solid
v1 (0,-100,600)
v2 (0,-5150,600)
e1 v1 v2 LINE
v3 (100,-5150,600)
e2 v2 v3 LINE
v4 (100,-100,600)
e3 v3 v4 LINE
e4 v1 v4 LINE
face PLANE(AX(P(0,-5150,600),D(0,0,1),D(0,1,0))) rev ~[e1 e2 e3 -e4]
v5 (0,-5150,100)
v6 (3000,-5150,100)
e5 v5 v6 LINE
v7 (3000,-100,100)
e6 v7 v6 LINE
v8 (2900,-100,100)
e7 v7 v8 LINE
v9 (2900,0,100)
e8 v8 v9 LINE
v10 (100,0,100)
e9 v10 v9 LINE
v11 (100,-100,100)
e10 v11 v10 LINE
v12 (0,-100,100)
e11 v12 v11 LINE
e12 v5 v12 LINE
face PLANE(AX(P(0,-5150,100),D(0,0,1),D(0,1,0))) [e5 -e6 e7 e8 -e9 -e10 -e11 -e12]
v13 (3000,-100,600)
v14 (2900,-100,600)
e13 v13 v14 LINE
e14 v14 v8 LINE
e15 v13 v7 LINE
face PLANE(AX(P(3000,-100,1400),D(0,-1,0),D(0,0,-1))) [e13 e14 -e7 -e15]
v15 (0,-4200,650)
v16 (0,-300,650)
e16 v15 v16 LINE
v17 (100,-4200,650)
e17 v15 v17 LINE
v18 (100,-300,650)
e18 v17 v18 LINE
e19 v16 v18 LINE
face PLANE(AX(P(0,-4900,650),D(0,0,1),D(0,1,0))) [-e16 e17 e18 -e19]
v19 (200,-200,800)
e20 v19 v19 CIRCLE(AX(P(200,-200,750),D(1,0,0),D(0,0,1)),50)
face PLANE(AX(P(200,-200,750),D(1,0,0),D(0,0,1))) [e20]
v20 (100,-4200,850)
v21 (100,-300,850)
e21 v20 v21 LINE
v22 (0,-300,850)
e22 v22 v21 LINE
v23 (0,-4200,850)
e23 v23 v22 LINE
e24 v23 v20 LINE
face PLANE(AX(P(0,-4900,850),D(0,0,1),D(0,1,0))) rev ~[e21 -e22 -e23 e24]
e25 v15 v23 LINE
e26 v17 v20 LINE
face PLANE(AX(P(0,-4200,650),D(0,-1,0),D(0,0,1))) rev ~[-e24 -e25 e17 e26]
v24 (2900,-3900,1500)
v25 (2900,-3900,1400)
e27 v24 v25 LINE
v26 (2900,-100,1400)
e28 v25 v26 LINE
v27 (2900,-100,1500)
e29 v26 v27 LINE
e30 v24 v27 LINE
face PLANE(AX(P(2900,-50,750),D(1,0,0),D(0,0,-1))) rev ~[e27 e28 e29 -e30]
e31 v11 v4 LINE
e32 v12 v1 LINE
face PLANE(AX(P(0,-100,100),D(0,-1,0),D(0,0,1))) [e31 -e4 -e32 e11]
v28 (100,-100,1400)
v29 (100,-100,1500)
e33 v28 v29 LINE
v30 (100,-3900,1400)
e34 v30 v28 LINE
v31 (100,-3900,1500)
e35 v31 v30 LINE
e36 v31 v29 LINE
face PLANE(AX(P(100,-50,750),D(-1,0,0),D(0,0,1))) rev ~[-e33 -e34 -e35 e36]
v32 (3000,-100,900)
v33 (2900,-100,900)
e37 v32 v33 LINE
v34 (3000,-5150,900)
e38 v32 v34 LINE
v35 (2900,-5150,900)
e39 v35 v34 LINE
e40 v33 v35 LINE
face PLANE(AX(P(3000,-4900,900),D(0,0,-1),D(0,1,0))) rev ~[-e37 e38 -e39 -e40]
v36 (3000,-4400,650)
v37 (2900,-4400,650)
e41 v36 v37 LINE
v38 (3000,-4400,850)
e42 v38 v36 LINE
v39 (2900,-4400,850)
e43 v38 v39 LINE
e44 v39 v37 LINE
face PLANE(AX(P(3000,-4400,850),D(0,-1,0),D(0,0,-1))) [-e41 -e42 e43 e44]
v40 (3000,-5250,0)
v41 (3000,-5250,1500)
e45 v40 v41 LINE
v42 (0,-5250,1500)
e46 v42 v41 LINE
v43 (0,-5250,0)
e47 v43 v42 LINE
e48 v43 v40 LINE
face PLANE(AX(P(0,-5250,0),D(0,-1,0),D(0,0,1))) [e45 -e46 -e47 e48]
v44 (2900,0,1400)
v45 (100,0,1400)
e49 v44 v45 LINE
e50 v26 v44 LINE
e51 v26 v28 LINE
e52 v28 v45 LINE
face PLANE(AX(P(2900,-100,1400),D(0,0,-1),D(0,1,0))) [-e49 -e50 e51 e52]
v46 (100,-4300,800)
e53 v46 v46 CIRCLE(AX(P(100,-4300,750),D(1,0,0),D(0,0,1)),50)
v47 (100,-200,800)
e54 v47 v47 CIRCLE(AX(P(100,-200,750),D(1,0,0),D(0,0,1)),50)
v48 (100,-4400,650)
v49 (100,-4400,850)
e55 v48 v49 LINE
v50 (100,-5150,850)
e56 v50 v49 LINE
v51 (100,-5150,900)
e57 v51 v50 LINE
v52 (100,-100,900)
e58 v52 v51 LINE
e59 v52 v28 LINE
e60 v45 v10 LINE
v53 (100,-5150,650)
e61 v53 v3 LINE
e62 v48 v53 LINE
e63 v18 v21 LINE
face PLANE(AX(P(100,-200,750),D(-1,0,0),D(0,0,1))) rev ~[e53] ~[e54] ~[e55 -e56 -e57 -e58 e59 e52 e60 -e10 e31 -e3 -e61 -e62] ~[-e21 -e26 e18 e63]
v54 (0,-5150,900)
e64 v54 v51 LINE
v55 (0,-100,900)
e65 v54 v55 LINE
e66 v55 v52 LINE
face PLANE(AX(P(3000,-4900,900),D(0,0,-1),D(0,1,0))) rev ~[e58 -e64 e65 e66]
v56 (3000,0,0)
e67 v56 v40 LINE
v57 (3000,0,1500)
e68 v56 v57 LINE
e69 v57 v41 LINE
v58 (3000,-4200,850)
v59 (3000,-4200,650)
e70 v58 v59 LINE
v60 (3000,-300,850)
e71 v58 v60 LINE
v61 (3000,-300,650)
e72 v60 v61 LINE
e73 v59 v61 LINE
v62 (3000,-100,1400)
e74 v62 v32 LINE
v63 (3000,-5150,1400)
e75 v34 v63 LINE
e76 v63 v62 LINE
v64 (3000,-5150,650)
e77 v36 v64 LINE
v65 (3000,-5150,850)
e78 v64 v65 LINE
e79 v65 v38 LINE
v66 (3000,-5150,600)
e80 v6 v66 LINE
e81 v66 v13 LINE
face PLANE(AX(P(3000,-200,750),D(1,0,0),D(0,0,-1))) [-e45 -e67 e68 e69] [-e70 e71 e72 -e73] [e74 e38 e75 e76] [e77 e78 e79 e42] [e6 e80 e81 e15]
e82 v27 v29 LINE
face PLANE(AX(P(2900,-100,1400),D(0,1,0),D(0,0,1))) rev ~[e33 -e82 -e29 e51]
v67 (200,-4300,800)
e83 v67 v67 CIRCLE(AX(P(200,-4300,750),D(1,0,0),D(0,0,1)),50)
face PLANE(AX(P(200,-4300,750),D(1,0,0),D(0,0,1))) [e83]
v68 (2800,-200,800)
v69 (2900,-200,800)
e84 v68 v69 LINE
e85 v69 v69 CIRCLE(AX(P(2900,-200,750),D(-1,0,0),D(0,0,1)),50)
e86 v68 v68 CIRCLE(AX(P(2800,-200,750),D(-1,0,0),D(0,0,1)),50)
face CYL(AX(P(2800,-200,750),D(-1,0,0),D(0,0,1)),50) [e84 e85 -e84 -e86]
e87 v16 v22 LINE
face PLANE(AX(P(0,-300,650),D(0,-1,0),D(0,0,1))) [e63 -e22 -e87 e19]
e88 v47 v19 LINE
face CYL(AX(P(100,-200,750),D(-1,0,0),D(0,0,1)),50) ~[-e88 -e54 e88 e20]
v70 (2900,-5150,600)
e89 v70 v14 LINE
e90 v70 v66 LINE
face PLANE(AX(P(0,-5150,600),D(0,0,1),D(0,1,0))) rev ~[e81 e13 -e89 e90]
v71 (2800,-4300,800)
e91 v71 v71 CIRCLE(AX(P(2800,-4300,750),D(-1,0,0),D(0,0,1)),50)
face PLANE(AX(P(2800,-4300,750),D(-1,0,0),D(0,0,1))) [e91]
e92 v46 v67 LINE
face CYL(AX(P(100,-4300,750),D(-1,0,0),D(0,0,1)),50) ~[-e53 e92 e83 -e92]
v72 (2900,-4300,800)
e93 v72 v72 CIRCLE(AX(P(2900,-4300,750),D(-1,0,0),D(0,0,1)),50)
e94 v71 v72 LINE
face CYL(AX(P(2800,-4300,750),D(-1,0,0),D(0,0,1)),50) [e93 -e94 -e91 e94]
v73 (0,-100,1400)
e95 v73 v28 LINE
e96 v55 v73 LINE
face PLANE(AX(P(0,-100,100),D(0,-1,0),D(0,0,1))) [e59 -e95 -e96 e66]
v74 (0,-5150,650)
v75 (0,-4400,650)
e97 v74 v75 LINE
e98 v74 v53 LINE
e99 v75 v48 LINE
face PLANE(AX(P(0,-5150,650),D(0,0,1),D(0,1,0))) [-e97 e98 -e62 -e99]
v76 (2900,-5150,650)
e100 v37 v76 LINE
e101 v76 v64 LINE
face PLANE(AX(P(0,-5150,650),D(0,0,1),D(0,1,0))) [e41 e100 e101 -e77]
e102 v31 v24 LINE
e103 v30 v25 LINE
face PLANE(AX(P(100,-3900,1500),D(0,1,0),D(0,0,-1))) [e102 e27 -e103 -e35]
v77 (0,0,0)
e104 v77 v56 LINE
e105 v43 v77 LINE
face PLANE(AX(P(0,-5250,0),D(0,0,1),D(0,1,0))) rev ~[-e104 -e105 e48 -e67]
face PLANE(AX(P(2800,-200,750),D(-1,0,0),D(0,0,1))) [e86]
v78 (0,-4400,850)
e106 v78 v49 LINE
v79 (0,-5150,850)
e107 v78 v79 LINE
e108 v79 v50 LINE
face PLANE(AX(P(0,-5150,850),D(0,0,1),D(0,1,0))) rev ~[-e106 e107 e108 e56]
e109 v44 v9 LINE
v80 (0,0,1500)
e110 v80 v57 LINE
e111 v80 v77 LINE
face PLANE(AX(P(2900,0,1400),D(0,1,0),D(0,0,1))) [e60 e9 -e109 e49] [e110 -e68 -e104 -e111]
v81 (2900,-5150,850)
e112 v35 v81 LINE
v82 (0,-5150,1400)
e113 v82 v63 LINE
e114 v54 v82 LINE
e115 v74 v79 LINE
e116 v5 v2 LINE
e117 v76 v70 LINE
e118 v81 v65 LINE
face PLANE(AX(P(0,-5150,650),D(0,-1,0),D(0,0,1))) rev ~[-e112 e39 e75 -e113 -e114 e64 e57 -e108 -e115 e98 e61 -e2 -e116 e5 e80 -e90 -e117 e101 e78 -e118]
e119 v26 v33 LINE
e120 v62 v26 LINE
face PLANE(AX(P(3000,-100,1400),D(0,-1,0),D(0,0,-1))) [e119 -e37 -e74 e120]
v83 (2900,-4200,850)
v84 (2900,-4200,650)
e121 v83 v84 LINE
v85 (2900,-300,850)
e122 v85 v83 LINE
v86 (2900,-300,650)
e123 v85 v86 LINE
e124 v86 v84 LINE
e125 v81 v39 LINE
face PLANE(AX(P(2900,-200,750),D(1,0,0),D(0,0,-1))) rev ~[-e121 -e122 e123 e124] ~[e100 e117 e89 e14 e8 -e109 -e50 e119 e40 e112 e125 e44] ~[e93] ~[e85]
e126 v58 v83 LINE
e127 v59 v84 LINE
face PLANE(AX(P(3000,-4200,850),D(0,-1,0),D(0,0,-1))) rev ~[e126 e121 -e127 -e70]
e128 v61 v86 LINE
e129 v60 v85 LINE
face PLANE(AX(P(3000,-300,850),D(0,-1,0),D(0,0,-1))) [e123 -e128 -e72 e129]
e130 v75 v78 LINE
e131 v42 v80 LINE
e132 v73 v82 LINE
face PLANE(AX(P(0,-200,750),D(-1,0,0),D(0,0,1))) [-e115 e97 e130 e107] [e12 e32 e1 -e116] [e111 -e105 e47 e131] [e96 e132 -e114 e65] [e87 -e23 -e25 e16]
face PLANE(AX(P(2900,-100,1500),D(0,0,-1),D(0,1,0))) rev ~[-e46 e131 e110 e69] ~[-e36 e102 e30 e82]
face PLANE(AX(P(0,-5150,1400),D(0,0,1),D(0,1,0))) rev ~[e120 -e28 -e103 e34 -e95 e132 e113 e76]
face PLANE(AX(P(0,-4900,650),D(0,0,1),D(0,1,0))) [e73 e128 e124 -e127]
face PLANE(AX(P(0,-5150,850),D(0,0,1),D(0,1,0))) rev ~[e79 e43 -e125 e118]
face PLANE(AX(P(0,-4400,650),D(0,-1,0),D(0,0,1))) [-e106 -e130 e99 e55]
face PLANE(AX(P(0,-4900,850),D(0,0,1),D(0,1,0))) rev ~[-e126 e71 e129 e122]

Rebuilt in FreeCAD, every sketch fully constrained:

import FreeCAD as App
import Part
import Sketcher

V = App.Vector


def add_polygon(sketch, points):
    """Adds a closed chain of lines whose ends are joined by coincident constraints."""
    first, n = sketch.GeometryCount, len(points)
    for a, b in zip(points, points[1:] + points[:1]):
        sketch.addGeometry(Part.LineSegment(App.Vector(*a, 0), App.Vector(*b, 0)), False)
    for i in range(n):
        sketch.addConstraint(Sketcher.Constraint("Coincident", first + i, 2, first + (i + 1) % n, 1))

doc = App.newDocument("Part")
params = doc.addObject("Spreadsheet::Sheet", "Params")
for row, (alias, value) in enumerate([
    ("sketch1_width", "3000 mm"),
    ("sketch1_height", "5000 mm"),
    ("pad1_length", "100 mm"),
    ("sketch2_width", "3000 mm"),
    ("sketch2_height", "100 mm"),
    ("pad2_length", "1400 mm"),
    ("sketch3_width", "100 mm"),
    ("pad3_length", "4900 mm"),
    ("sketch4_width", "100 mm"),
    ("pad4_length", "4900 mm"),
    ("sketch5_width", "1000 mm"),
    ("sketch5_height", "100 mm"),
    ("pad5_length", "2800 mm"),
    ("sketch6_width", "4900 mm"),
    ("sketch6_height", "300 mm"),
    ("pad6_length", "100 mm"),
    ("sketch7_width", "4900 mm"),
    ("sketch7_height", "300 mm"),
    ("pad7_length", "100 mm"),
    ("sketch8_width", "4900 mm"),
    ("sketch8_height", "200 mm"),
    ("sketch9_width", "200 mm"),
    ("pad8_length", "100 mm"),
    ("sketch10_width", "200 mm"),
    ("pad9_length", "100 mm"),
    ("sketch11_width", "100 mm"),
    ("sketch11_height", "1300 mm"),
    ("pad10_length", "100 mm"),
    ("sketch12_width", "100 mm"),
    ("sketch12_height", "1300 mm"),
    ("pad11_length", "100 mm"),
    ("sketch13_width", "250 mm"),
    ("sketch13_height", "1500 mm"),
    ("pad12_length", "3000 mm"),
    ("sketch14_width", "250 mm"),
    ("sketch14_height", "500 mm"),
    ("sketch15_width", "250 mm"),
    ("sketch15_height", "500 mm"),
    ("pocket3_length", "3000 mm"),
    ("sketch16_width", "250 mm"),
    ("sketch16_height", "200 mm"),
    ("pocket4_length", "3000 mm"),
    ("sketch17_width", "2800 mm"),
    ("sketch17_height", "300 mm"),
    ("pocket5_length", "250 mm"),
    ("sketch18_width", "100 mm"),
    ("pad13_length", "2800 mm"),
    ("sketch19_width", "200 mm"),
    ("pad14_length", "100 mm"),
    ("sketch20_width", "200 mm"),
    ("pad15_length", "100 mm"),
    ("sketch21_diameter", "100 mm"),
    ("pad16_length", "100 mm"),
    ("sketch22_diameter", "100 mm"),
    ("pad17_length", "100 mm"),
    ("sketch23_diameter", "100 mm"),
    ("pad18_length", "100 mm"),
    ("sketch24_diameter", "100 mm"),
    ("pad19_length", "100 mm"),
], start=1):
    params.set(f"A{row}", alias)
    params.set(f"B{row}", "=" + value)
    params.setAlias(f"B{row}", alias)

body = doc.addObject("PartDesign::Body", "Body")

# Sketch on XY plane
sketch1 = body.newObject("Sketcher::SketchObject", "Sketch")
sketch1.AttachmentSupport = (doc.getObject("XY_Plane"), [""])
sketch1.MapMode = "FlatFace"
add_polygon(sketch1, [(0, 0), (0, -5000), (3000, -5000), (3000, 0)])  # lines 0-3
sketch1.addConstraint([
    Sketcher.Constraint("Vertical", 0),
    Sketcher.Constraint("Horizontal", 1),
    Sketcher.Constraint("Vertical", 2),
    Sketcher.Constraint("Horizontal", 3),
    Sketcher.Constraint("Coincident", 3, 2, -1, 1),
    Sketcher.Constraint("DistanceX", 1, 1, 1, 2, 3000.0),
    Sketcher.Constraint("DistanceY", 0, 2, 0, 1, 5000.0),
])
sketch1.setExpression("Constraints[9]", "Params.sketch1_width")
sketch1.setExpression("Constraints[10]", "Params.sketch1_height")
pad1 = body.newObject("PartDesign::Pad", "Pad")
pad1.Profile = sketch1
pad1.setExpression("Length", "Params.pad1_length")

# Sketch on XY plane
sketch2 = body.newObject("Sketcher::SketchObject", "Sketch001")
sketch2.AttachmentSupport = (doc.getObject("XY_Plane"), [""])
sketch2.MapMode = "FlatFace"
sketch2.AttachmentOffset = App.Placement(V(0, 0, 100), App.Rotation())
add_polygon(sketch2, [(0, -4900), (0, -5000), (3000, -5000), (3000, -4900)])  # lines 0-3
sketch2.addConstraint([
    Sketcher.Constraint("Vertical", 0),
    Sketcher.Constraint("Horizontal", 1),
    Sketcher.Constraint("Vertical", 2),
    Sketcher.Constraint("Horizontal", 3),
    Sketcher.Constraint("PointOnObject", 0, 2, -2),
    Sketcher.Constraint("DistanceX", 1, 1, 1, 2, 3000.0),
    Sketcher.Constraint("DistanceY", 0, 2, 0, 1, 100.0),
    Sketcher.Constraint("DistanceY", 0, 2, -1, 1, 5000.0),
])
sketch2.setExpression("Constraints[9]", "Params.sketch2_width")
sketch2.setExpression("Constraints[10]", "Params.sketch2_height")
pad2 = body.newObject("PartDesign::Pad", "Pad001")
pad2.Profile = sketch2
pad2.setExpression("Length", "Params.pad2_length")

# Sketch on XZ plane
sketch3 = body.newObject("Sketcher::SketchObject", "Sketch002")
sketch3.AttachmentSupport = (doc.getObject("XZ_Plane"), [""])
sketch3.MapMode = "FlatFace"
sketch3.AttachmentOffset = App.Placement(V(0, 0, 4900), App.Rotation())
add_polygon(sketch3, [(0, 1400), (0, 1500), (100, 1500), (100, 1400)])  # lines 0-3
sketch3.addConstraint([
    Sketcher.Constraint("Vertical", 0),
    Sketcher.Constraint("Horizontal", 1),
    Sketcher.Constraint("Vertical", 2),
    Sketcher.Constraint("Horizontal", 3),
    Sketcher.Constraint("PointOnObject", 0, 2, -2),
    Sketcher.Constraint("Equal", 3, 0),
    Sketcher.Constraint("DistanceX", 1, 1, 1, 2, 100.0),
    Sketcher.Constraint("DistanceY", -1, 1, 0, 2, 1500.0),
])
sketch3.setExpression("Constraints[10]", "Params.sketch3_width")
pad3 = body.newObject("PartDesign::Pad", "Pad002")
pad3.Profile = sketch3
pad3.setExpression("Length", "Params.pad3_length")
pad3.Reversed = True

# Sketch on XZ plane
sketch4 = body.newObject("Sketcher::SketchObject", "Sketch003")
sketch4.AttachmentSupport = (doc.getObject("XZ_Plane"), [""])
sketch4.MapMode = "FlatFace"
sketch4.AttachmentOffset = App.Placement(V(0, 0, 4900), App.Rotation())
add_polygon(sketch4, [(2900, 1400), (2900, 1500), (3000, 1500), (3000, 1400)])  # lines 0-3
sketch4.addConstraint([
    Sketcher.Constraint("Vertical", 0),
    Sketcher.Constraint("Horizontal", 1),
    Sketcher.Constraint("Vertical", 2),
    Sketcher.Constraint("Horizontal", 3),
    Sketcher.Constraint("Equal", 3, 0),
    Sketcher.Constraint("DistanceX", 1, 1, 1, 2, 100.0),
    Sketcher.Constraint("DistanceX", -1, 1, 0, 2, 2900.0),
    Sketcher.Constraint("DistanceY", -1, 1, 0, 2, 1500.0),
])
sketch4.setExpression("Constraints[9]", "Params.sketch4_width")
pad4 = body.newObject("PartDesign::Pad", "Pad003")
pad4.Profile = sketch4
pad4.setExpression("Length", "Params.pad4_length")
pad4.Reversed = True

# Sketch on YZ plane
sketch5 = body.newObject("Sketcher::SketchObject", "Sketch004")
sketch5.AttachmentSupport = (doc.getObject("YZ_Plane"), [""])
sketch5.MapMode = "FlatFace"
sketch5.AttachmentOffset = App.Placement(V(0, 0, 100), App.Rotation())
add_polygon(sketch5, [(-3900, 1500), (-4900, 1500), (-4900, 1400), (-3900, 1400)])  # lines 0-3
sketch5.addConstraint([
    Sketcher.Constraint("Horizontal", 0),
    Sketcher.Constraint("Vertical", 1),
    Sketcher.Constraint("Horizontal", 2),
    Sketcher.Constraint("Vertical", 3),
    Sketcher.Constraint("DistanceX", 0, 2, 0, 1, 1000.0),
    Sketcher.Constraint("DistanceY", 1, 2, 1, 1, 100.0),
    Sketcher.Constraint("DistanceX", 0, 2, -1, 1, 4900.0),
    Sketcher.Constraint("DistanceY", -1, 1, 0, 2, 1500.0),
])
sketch5.setExpression("Constraints[8]", "Params.sketch5_width")
sketch5.setExpression("Constraints[9]", "Params.sketch5_height")
pad5 = body.newObject("PartDesign::Pad", "Pad004")
pad5.Profile = sketch5
pad5.setExpression("Length", "Params.pad5_length")

# Sketch on YZ plane
sketch6 = body.newObject("Sketcher::SketchObject", "Sketch005")
sketch6.AttachmentSupport = (doc.getObject("YZ_Plane"), [""])
sketch6.MapMode = "FlatFace"
sketch6.AttachmentOffset = App.Placement(V(0, 0, 3000), App.Rotation())
add_polygon(sketch6, [(0, 900), (-4900, 900), (-4900, 600), (0, 600)])  # lines 0-3
sketch6.addConstraint([
    Sketcher.Constraint("Horizontal", 0),
    Sketcher.Constraint("Vertical", 1),
    Sketcher.Constraint("Horizontal", 2),
    Sketcher.Constraint("Vertical", 3),
    Sketcher.Constraint("PointOnObject", 2, 2, -2),
    Sketcher.Constraint("DistanceX", 0, 2, 0, 1, 4900.0),
    Sketcher.Constraint("DistanceY", 1, 2, 1, 1, 300.0),
    Sketcher.Constraint("DistanceY", -1, 1, 0, 2, 900.0),
])
sketch6.setExpression("Constraints[9]", "Params.sketch6_width")
sketch6.setExpression("Constraints[10]", "Params.sketch6_height")
pad6 = body.newObject("PartDesign::Pad", "Pad005")
pad6.Profile = sketch6
pad6.setExpression("Length", "Params.pad6_length")
pad6.Reversed = True

# Sketch on YZ plane
sketch7 = body.newObject("Sketcher::SketchObject", "Sketch006")
sketch7.AttachmentSupport = (doc.getObject("YZ_Plane"), [""])
sketch7.MapMode = "FlatFace"
add_polygon(sketch7, [(0, 600), (-4900, 600), (-4900, 900), (0, 900)])  # lines 0-3
sketch7.addConstraint([
    Sketcher.Constraint("Horizontal", 0),
    Sketcher.Constraint("Vertical", 1),
    Sketcher.Constraint("Horizontal", 2),
    Sketcher.Constraint("Vertical", 3),
    Sketcher.Constraint("PointOnObject", 2, 2, -2),
    Sketcher.Constraint("DistanceX", 0, 2, 0, 1, 4900.0),
    Sketcher.Constraint("DistanceY", 1, 1, 1, 2, 300.0),
    Sketcher.Constraint("DistanceY", -1, 1, 0, 2, 600.0),
])
sketch7.setExpression("Constraints[9]", "Params.sketch7_width")
sketch7.setExpression("Constraints[10]", "Params.sketch7_height")
pad7 = body.newObject("PartDesign::Pad", "Pad006")
pad7.Profile = sketch7
pad7.setExpression("Length", "Params.pad7_length")

# Sketch on YZ plane
sketch8 = body.newObject("Sketcher::SketchObject", "Sketch007")
sketch8.AttachmentSupport = (doc.getObject("YZ_Plane"), [""])
sketch8.MapMode = "FlatFace"
add_polygon(sketch8, [(0, 650), (-4900, 650), (-4900, 850), (0, 850)])  # lines 0-3
sketch8.addConstraint([
    Sketcher.Constraint("Horizontal", 0),
    Sketcher.Constraint("Vertical", 1),
    Sketcher.Constraint("Horizontal", 2),
    Sketcher.Constraint("Vertical", 3),
    Sketcher.Constraint("PointOnObject", 2, 2, -2),
    Sketcher.Constraint("DistanceX", 0, 2, 0, 1, 4900.0),
    Sketcher.Constraint("DistanceY", 1, 1, 1, 2, 200.0),
    Sketcher.Constraint("DistanceY", -1, 1, 0, 2, 650.0),
])
sketch8.setExpression("Constraints[9]", "Params.sketch8_width")
sketch8.setExpression("Constraints[10]", "Params.sketch8_height")
pocket1 = body.newObject("PartDesign::Pocket", "Pocket")
pocket1.Profile = sketch8
pocket1.Type = "ThroughAll"
pocket1.Reversed = True

# Sketch on YZ plane
sketch9 = body.newObject("Sketcher::SketchObject", "Sketch008")
sketch9.AttachmentSupport = (doc.getObject("YZ_Plane"), [""])
sketch9.MapMode = "FlatFace"
add_polygon(sketch9, [(-4200, 650), (-4400, 650), (-4400, 850), (-4200, 850)])  # lines 0-3
sketch9.addConstraint([
    Sketcher.Constraint("Horizontal", 0),
    Sketcher.Constraint("Vertical", 1),
    Sketcher.Constraint("Horizontal", 2),
    Sketcher.Constraint("Vertical", 3),
    Sketcher.Constraint("Equal", 2, 1),
    Sketcher.Constraint("DistanceX", 0, 2, 0, 1, 200.0),
    Sketcher.Constraint("DistanceX", 0, 2, -1, 1, 4400.0),
    Sketcher.Constraint("DistanceY", -1, 1, 0, 2, 650.0),
])
sketch9.setExpression("Constraints[9]", "Params.sketch9_width")
pad8 = body.newObject("PartDesign::Pad", "Pad007")
pad8.Profile = sketch9
pad8.setExpression("Length", "Params.pad8_length")

# Sketch on YZ plane
sketch10 = body.newObject("Sketcher::SketchObject", "Sketch009")
sketch10.AttachmentSupport = (doc.getObject("YZ_Plane"), [""])
sketch10.MapMode = "FlatFace"
sketch10.AttachmentOffset = App.Placement(V(0, 0, 3000), App.Rotation())
add_polygon(sketch10, [(-4200, 850), (-4400, 850), (-4400, 650), (-4200, 650)])  # lines 0-3
sketch10.addConstraint([
    Sketcher.Constraint("Horizontal", 0),
    Sketcher.Constraint("Vertical", 1),
    Sketcher.Constraint("Horizontal", 2),
    Sketcher.Constraint("Vertical", 3),
    Sketcher.Constraint("Equal", 2, 1),
    Sketcher.Constraint("DistanceX", 0, 2, 0, 1, 200.0),
    Sketcher.Constraint("DistanceX", 0, 2, -1, 1, 4400.0),
    Sketcher.Constraint("DistanceY", -1, 1, 0, 2, 850.0),
])
sketch10.setExpression("Constraints[9]", "Params.sketch10_width")
pad9 = body.newObject("PartDesign::Pad", "Pad008")
pad9.Profile = sketch10
pad9.setExpression("Length", "Params.pad9_length")
pad9.Reversed = True

# Sketch on YZ plane
sketch11 = body.newObject("Sketcher::SketchObject", "Sketch010")
sketch11.AttachmentSupport = (doc.getObject("YZ_Plane"), [""])
sketch11.MapMode = "FlatFace"
sketch11.AttachmentOffset = App.Placement(V(0, 0, 3000), App.Rotation())
add_polygon(sketch11, [(0, 1400), (-100, 1400), (-100, 100), (0, 100)])  # lines 0-3
sketch11.addConstraint([
    Sketcher.Constraint("Horizontal", 0),
    Sketcher.Constraint("Vertical", 1),
    Sketcher.Constraint("Horizontal", 2),
    Sketcher.Constraint("Vertical", 3),
    Sketcher.Constraint("PointOnObject", 2, 2, -2),
    Sketcher.Constraint("DistanceX", 0, 2, 0, 1, 100.0),
    Sketcher.Constraint("DistanceY", 1, 2, 1, 1, 1300.0),
    Sketcher.Constraint("DistanceY", -1, 1, 0, 2, 1400.0),
])
sketch11.setExpression("Constraints[9]", "Params.sketch11_width")
sketch11.setExpression("Constraints[10]", "Params.sketch11_height")
pad10 = body.newObject("PartDesign::Pad", "Pad009")
pad10.Profile = sketch11
pad10.setExpression("Length", "Params.pad10_length")
pad10.Reversed = True

# Sketch on YZ plane
sketch12 = body.newObject("Sketcher::SketchObject", "Sketch011")
sketch12.AttachmentSupport = (doc.getObject("YZ_Plane"), [""])
sketch12.MapMode = "FlatFace"
add_polygon(sketch12, [(0, 100), (-100, 100), (-100, 1400), (0, 1400)])  # lines 0-3
sketch12.addConstraint([
    Sketcher.Constraint("Horizontal", 0),
    Sketcher.Constraint("Vertical", 1),
    Sketcher.Constraint("Horizontal", 2),
    Sketcher.Constraint("Vertical", 3),
    Sketcher.Constraint("PointOnObject", 2, 2, -2),
    Sketcher.Constraint("DistanceX", 0, 2, 0, 1, 100.0),
    Sketcher.Constraint("DistanceY", 1, 1, 1, 2, 1300.0),
    Sketcher.Constraint("DistanceY", -1, 1, 0, 2, 100.0),
])
sketch12.setExpression("Constraints[9]", "Params.sketch12_width")
sketch12.setExpression("Constraints[10]", "Params.sketch12_height")
pad11 = body.newObject("PartDesign::Pad", "Pad010")
pad11.Profile = sketch12
pad11.setExpression("Length", "Params.pad11_length")

# Sketch on YZ plane
sketch13 = body.newObject("Sketcher::SketchObject", "Sketch012")
sketch13.AttachmentSupport = (doc.getObject("YZ_Plane"), [""])
sketch13.MapMode = "FlatFace"
add_polygon(sketch13, [(-5000, 0), (-5250, 0), (-5250, 1500), (-5000, 1500)])  # lines 0-3
sketch13.addConstraint([
    Sketcher.Constraint("Horizontal", 0),
    Sketcher.Constraint("Vertical", 1),
    Sketcher.Constraint("Horizontal", 2),
    Sketcher.Constraint("Vertical", 3),
    Sketcher.Constraint("PointOnObject", 0, 2, -1),
    Sketcher.Constraint("DistanceX", 0, 2, 0, 1, 250.0),
    Sketcher.Constraint("DistanceY", 1, 1, 1, 2, 1500.0),
    Sketcher.Constraint("DistanceX", 0, 2, -1, 1, 5250.0),
])
sketch13.setExpression("Constraints[9]", "Params.sketch13_width")
sketch13.setExpression("Constraints[10]", "Params.sketch13_height")
pad12 = body.newObject("PartDesign::Pad", "Pad011")
pad12.Profile = sketch13
pad12.setExpression("Length", "Params.pad12_length")

# Sketch on YZ plane
sketch14 = body.newObject("Sketcher::SketchObject", "Sketch013")
sketch14.AttachmentSupport = (doc.getObject("YZ_Plane"), [""])
sketch14.MapMode = "FlatFace"
add_polygon(sketch14, [(-4900, 100), (-5150, 100), (-5150, 600), (-4900, 600)])  # lines 0-3
sketch14.addConstraint([
    Sketcher.Constraint("Horizontal", 0),
    Sketcher.Constraint("Vertical", 1),
    Sketcher.Constraint("Horizontal", 2),
    Sketcher.Constraint("Vertical", 3),
    Sketcher.Constraint("DistanceX", 0, 2, 0, 1, 250.0),
    Sketcher.Constraint("DistanceY", 1, 1, 1, 2, 500.0),
    Sketcher.Constraint("DistanceX", 0, 2, -1, 1, 5150.0),
    Sketcher.Constraint("DistanceY", -1, 1, 0, 2, 100.0),
])
sketch14.setExpression("Constraints[8]", "Params.sketch14_width")
sketch14.setExpression("Constraints[9]", "Params.sketch14_height")
pocket2 = body.newObject("PartDesign::Pocket", "Pocket001")
pocket2.Profile = sketch14
pocket2.Type = "ThroughAll"
pocket2.Reversed = True

# Sketch on YZ plane
sketch15 = body.newObject("Sketcher::SketchObject", "Sketch014")
sketch15.AttachmentSupport = (doc.getObject("YZ_Plane"), [""])
sketch15.MapMode = "FlatFace"
add_polygon(sketch15, [(-4900, 900), (-5150, 900), (-5150, 1400), (-4900, 1400)])  # lines 0-3
sketch15.addConstraint([
    Sketcher.Constraint("Horizontal", 0),
    Sketcher.Constraint("Vertical", 1),
    Sketcher.Constraint("Horizontal", 2),
    Sketcher.Constraint("Vertical", 3),
    Sketcher.Constraint("DistanceX", 0, 2, 0, 1, 250.0),
    Sketcher.Constraint("DistanceY", 1, 1, 1, 2, 500.0),
    Sketcher.Constraint("DistanceX", 0, 2, -1, 1, 5150.0),
    Sketcher.Constraint("DistanceY", -1, 1, 0, 2, 900.0),
])
sketch15.setExpression("Constraints[8]", "Params.sketch15_width")
sketch15.setExpression("Constraints[9]", "Params.sketch15_height")
pocket3 = body.newObject("PartDesign::Pocket", "Pocket002")
pocket3.Profile = sketch15
pocket3.setExpression("Length", "Params.pocket3_length")
pocket3.Reversed = True

# Sketch on YZ plane
sketch16 = body.newObject("Sketcher::SketchObject", "Sketch015")
sketch16.AttachmentSupport = (doc.getObject("YZ_Plane"), [""])
sketch16.MapMode = "FlatFace"
add_polygon(sketch16, [(-4900, 650), (-5150, 650), (-5150, 850), (-4900, 850)])  # lines 0-3
sketch16.addConstraint([
    Sketcher.Constraint("Horizontal", 0),
    Sketcher.Constraint("Vertical", 1),
    Sketcher.Constraint("Horizontal", 2),
    Sketcher.Constraint("Vertical", 3),
    Sketcher.Constraint("DistanceX", 0, 2, 0, 1, 250.0),
    Sketcher.Constraint("DistanceY", 1, 1, 1, 2, 200.0),
    Sketcher.Constraint("DistanceX", 0, 2, -1, 1, 5150.0),
    Sketcher.Constraint("DistanceY", -1, 1, 0, 2, 650.0),
])
sketch16.setExpression("Constraints[8]", "Params.sketch16_width")
sketch16.setExpression("Constraints[9]", "Params.sketch16_height")
pocket4 = body.newObject("PartDesign::Pocket", "Pocket003")
pocket4.Profile = sketch16
pocket4.setExpression("Length", "Params.pocket4_length")
pocket4.Reversed = True

# Sketch on XZ plane
sketch17 = body.newObject("Sketcher::SketchObject", "Sketch016")
sketch17.AttachmentSupport = (doc.getObject("XZ_Plane"), [""])
sketch17.MapMode = "FlatFace"
sketch17.AttachmentOffset = App.Placement(V(0, 0, 4900), App.Rotation())
add_polygon(sketch17, [(100, 600), (100, 900), (2900, 900), (2900, 600)])  # lines 0-3
sketch17.addConstraint([
    Sketcher.Constraint("Vertical", 0),
    Sketcher.Constraint("Horizontal", 1),
    Sketcher.Constraint("Vertical", 2),
    Sketcher.Constraint("Horizontal", 3),
    Sketcher.Constraint("DistanceX", 1, 1, 1, 2, 2800.0),
    Sketcher.Constraint("DistanceY", 0, 1, 0, 2, 300.0),
    Sketcher.Constraint("DistanceX", -1, 1, 0, 2, 100.0),
    Sketcher.Constraint("DistanceY", -1, 1, 0, 2, 900.0),
])
sketch17.setExpression("Constraints[8]", "Params.sketch17_width")
sketch17.setExpression("Constraints[9]", "Params.sketch17_height")
pocket5 = body.newObject("PartDesign::Pocket", "Pocket004")
pocket5.Profile = sketch17
pocket5.setExpression("Length", "Params.pocket5_length")
pocket5.Reversed = True

# Sketch on YZ plane
sketch18 = body.newObject("Sketcher::SketchObject", "Sketch017")
sketch18.AttachmentSupport = (doc.getObject("YZ_Plane"), [""])
sketch18.MapMode = "FlatFace"
sketch18.AttachmentOffset = App.Placement(V(0, 0, 2900), App.Rotation())
add_polygon(sketch18, [(0, 1400), (-100, 1400), (-100, 1500), (0, 1500)])  # lines 0-3
sketch18.addConstraint([
    Sketcher.Constraint("Horizontal", 0),
    Sketcher.Constraint("Vertical", 1),
    Sketcher.Constraint("Horizontal", 2),
    Sketcher.Constraint("Vertical", 3),
    Sketcher.Constraint("PointOnObject", 2, 2, -2),
    Sketcher.Constraint("Equal", 2, 1),
    Sketcher.Constraint("DistanceX", 0, 2, 0, 1, 100.0),
    Sketcher.Constraint("DistanceY", -1, 1, 0, 2, 1400.0),
])
sketch18.setExpression("Constraints[10]", "Params.sketch18_width")
pad13 = body.newObject("PartDesign::Pad", "Pad012")
pad13.Profile = sketch18
pad13.setExpression("Length", "Params.pad13_length")
pad13.Reversed = True

# Sketch on YZ plane
sketch19 = body.newObject("Sketcher::SketchObject", "Sketch018")
sketch19.AttachmentSupport = (doc.getObject("YZ_Plane"), [""])
sketch19.MapMode = "FlatFace"
add_polygon(sketch19, [(-100, 650), (-300, 650), (-300, 850), (-100, 850)])  # lines 0-3
sketch19.addConstraint([
    Sketcher.Constraint("Horizontal", 0),
    Sketcher.Constraint("Vertical", 1),
    Sketcher.Constraint("Horizontal", 2),
    Sketcher.Constraint("Vertical", 3),
    Sketcher.Constraint("Equal", 2, 1),
    Sketcher.Constraint("DistanceX", 0, 2, 0, 1, 200.0),
    Sketcher.Constraint("DistanceX", 0, 2, -1, 1, 300.0),
    Sketcher.Constraint("DistanceY", -1, 1, 0, 2, 650.0),
])
sketch19.setExpression("Constraints[9]", "Params.sketch19_width")
pad14 = body.newObject("PartDesign::Pad", "Pad013")
pad14.Profile = sketch19
pad14.setExpression("Length", "Params.pad14_length")

# Sketch on YZ plane
sketch20 = body.newObject("Sketcher::SketchObject", "Sketch019")
sketch20.AttachmentSupport = (doc.getObject("YZ_Plane"), [""])
sketch20.MapMode = "FlatFace"
sketch20.AttachmentOffset = App.Placement(V(0, 0, 3000), App.Rotation())
add_polygon(sketch20, [(-100, 850), (-300, 850), (-300, 650), (-100, 650)])  # lines 0-3
sketch20.addConstraint([
    Sketcher.Constraint("Horizontal", 0),
    Sketcher.Constraint("Vertical", 1),
    Sketcher.Constraint("Horizontal", 2),
    Sketcher.Constraint("Vertical", 3),
    Sketcher.Constraint("Equal", 2, 1),
    Sketcher.Constraint("DistanceX", 0, 2, 0, 1, 200.0),
    Sketcher.Constraint("DistanceX", 0, 2, -1, 1, 300.0),
    Sketcher.Constraint("DistanceY", -1, 1, 0, 2, 850.0),
])
sketch20.setExpression("Constraints[9]", "Params.sketch20_width")
pad15 = body.newObject("PartDesign::Pad", "Pad014")
pad15.Profile = sketch20
pad15.setExpression("Length", "Params.pad15_length")
pad15.Reversed = True

# Sketch on YZ plane
sketch21 = body.newObject("Sketcher::SketchObject", "Sketch020")
sketch21.AttachmentSupport = (doc.getObject("YZ_Plane"), [""])
sketch21.MapMode = "FlatFace"
sketch21.AttachmentOffset = App.Placement(V(0, 0, 100), App.Rotation())
sketch21.addGeometry(Part.Circle(V(-4300, 750, 0), V(0, 0, 1), 50), False)
sketch21.addConstraint([
    Sketcher.Constraint("Diameter", 0, 100.0),
    Sketcher.Constraint("DistanceX", 0, 3, -1, 1, 4300.0),
    Sketcher.Constraint("DistanceY", -1, 1, 0, 3, 750.0),
])
sketch21.setExpression("Constraints[0]", "Params.sketch21_diameter")
pad16 = body.newObject("PartDesign::Pad", "Pad015")
pad16.Profile = sketch21
pad16.setExpression("Length", "Params.pad16_length")

# Sketch on YZ plane
sketch22 = body.newObject("Sketcher::SketchObject", "Sketch021")
sketch22.AttachmentSupport = (doc.getObject("YZ_Plane"), [""])
sketch22.MapMode = "FlatFace"
sketch22.AttachmentOffset = App.Placement(V(0, 0, 100), App.Rotation())
sketch22.addGeometry(Part.Circle(V(-200, 750, 0), V(0, 0, 1), 50), False)
sketch22.addConstraint([
    Sketcher.Constraint("Diameter", 0, 100.0),
    Sketcher.Constraint("DistanceX", 0, 3, -1, 1, 200.0),
    Sketcher.Constraint("DistanceY", -1, 1, 0, 3, 750.0),
])
sketch22.setExpression("Constraints[0]", "Params.sketch22_diameter")
pad17 = body.newObject("PartDesign::Pad", "Pad016")
pad17.Profile = sketch22
pad17.setExpression("Length", "Params.pad17_length")

# Sketch on YZ plane
sketch23 = body.newObject("Sketcher::SketchObject", "Sketch022")
sketch23.AttachmentSupport = (doc.getObject("YZ_Plane"), [""])
sketch23.MapMode = "FlatFace"
sketch23.AttachmentOffset = App.Placement(V(0, 0, 2800), App.Rotation())
sketch23.addGeometry(Part.Circle(V(-200, 750, 0), V(0, 0, 1), 50), False)
sketch23.addConstraint([
    Sketcher.Constraint("Diameter", 0, 100.0),
    Sketcher.Constraint("DistanceX", 0, 3, -1, 1, 200.0),
    Sketcher.Constraint("DistanceY", -1, 1, 0, 3, 750.0),
])
sketch23.setExpression("Constraints[0]", "Params.sketch23_diameter")
pad18 = body.newObject("PartDesign::Pad", "Pad017")
pad18.Profile = sketch23
pad18.setExpression("Length", "Params.pad18_length")

# Sketch on YZ plane
sketch24 = body.newObject("Sketcher::SketchObject", "Sketch023")
sketch24.AttachmentSupport = (doc.getObject("YZ_Plane"), [""])
sketch24.MapMode = "FlatFace"
sketch24.AttachmentOffset = App.Placement(V(0, 0, 2800), App.Rotation())
sketch24.addGeometry(Part.Circle(V(-4300, 750, 0), V(0, 0, 1), 50), False)
sketch24.addConstraint([
    Sketcher.Constraint("Diameter", 0, 100.0),
    Sketcher.Constraint("DistanceX", 0, 3, -1, 1, 4300.0),
    Sketcher.Constraint("DistanceY", -1, 1, 0, 3, 750.0),
])
sketch24.setExpression("Constraints[0]", "Params.sketch24_diameter")
pad19 = body.newObject("PartDesign::Pad", "Pad018")
pad19.Profile = sketch24
pad19.setExpression("Length", "Params.pad19_length")

doc.recompute()
